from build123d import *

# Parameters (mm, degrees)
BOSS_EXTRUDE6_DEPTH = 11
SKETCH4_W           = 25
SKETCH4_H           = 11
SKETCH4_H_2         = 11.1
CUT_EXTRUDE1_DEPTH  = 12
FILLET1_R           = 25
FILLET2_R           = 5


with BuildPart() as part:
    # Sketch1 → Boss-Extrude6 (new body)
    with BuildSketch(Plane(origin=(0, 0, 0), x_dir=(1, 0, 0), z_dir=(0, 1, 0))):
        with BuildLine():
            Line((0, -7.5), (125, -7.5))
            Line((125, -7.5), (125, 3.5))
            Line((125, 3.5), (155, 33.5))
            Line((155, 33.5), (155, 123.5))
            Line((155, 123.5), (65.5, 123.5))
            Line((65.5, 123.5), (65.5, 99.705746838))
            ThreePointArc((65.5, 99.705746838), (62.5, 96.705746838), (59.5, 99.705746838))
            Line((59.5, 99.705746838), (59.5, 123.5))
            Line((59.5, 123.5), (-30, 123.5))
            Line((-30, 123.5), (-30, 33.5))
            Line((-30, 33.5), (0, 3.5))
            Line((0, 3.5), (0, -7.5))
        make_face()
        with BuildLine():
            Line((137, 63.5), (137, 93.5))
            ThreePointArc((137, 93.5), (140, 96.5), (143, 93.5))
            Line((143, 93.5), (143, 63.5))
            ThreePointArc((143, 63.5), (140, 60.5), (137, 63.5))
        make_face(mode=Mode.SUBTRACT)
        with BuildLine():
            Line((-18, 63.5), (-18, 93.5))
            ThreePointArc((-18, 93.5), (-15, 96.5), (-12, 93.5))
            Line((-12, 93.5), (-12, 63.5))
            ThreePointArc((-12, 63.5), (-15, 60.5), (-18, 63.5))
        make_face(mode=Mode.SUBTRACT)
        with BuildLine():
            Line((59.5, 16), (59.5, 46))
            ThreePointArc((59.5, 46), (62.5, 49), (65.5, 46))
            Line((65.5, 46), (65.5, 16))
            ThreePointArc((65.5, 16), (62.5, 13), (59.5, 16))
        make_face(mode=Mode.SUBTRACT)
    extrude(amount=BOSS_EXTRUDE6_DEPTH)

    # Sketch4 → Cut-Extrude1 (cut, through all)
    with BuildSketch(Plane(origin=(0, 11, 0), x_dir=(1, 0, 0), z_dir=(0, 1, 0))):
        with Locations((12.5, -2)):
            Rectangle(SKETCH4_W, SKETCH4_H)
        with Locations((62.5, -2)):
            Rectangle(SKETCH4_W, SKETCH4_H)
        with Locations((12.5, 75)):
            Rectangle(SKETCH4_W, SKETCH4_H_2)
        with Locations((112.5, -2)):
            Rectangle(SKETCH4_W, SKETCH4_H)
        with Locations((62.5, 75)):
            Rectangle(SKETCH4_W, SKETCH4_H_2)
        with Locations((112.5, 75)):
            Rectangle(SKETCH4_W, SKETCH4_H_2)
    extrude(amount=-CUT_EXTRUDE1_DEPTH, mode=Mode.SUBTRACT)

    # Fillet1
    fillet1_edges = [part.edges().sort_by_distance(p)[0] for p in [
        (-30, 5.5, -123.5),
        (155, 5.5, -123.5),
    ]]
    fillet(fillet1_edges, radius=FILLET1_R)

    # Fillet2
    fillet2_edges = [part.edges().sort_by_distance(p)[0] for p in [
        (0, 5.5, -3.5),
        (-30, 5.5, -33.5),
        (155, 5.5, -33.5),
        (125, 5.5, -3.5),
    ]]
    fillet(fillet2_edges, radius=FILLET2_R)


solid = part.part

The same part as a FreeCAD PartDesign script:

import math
import FreeCAD as App
import Part
import Sketcher
from FreeCAD import Vector
Q = App.Units.Quantity


def edges_at(feature, points):
    """Names of the edges that pass closest to the given points."""
    edges = feature.Shape.Edges
    near = lambda p: min(range(len(edges)), key=lambda i: edges[i].distToShape(Part.Vertex(*p))[0])
    return sorted({f"Edge{near(p) + 1}" for p in points})

doc = App.newDocument("Part")
body = doc.addObject("PartDesign::Body", "Body")

# Sketch on XZ plane
sketch1 = body.newObject("Sketcher::SketchObject", "Sketch")
sketch1.AttachmentSupport = (doc.getObject("XZ_Plane"), [""])
sketch1.MapMode = "FlatFace"
sketch1.addGeometry([
    Part.LineSegment(Vector(0, 7.5, 0), Vector(125, 7.5, 0)),  # 0
    Part.LineSegment(Vector(125, 7.5, 0), Vector(125, -3.5, 0)),  # 1
    Part.LineSegment(Vector(125, -3.5, 0), Vector(155, -33.5, 0)),  # 2
    Part.LineSegment(Vector(155, -33.5, 0), Vector(155, -123.5, 0)),  # 3
    Part.LineSegment(Vector(155, -123.5, 0), Vector(65.5, -123.5, 0)),  # 4
    Part.LineSegment(Vector(65.5, -123.5, 0), Vector(65.5, -99.7, 0)),  # 5
    Part.ArcOfCircle(Part.Circle(Vector(62.5, -99.7, 0), Vector(0, 0, 1), 3), math.radians(0), math.radians(180)),  # 6
    Part.LineSegment(Vector(59.5, -99.7, 0), Vector(59.5, -123.5, 0)),  # 7
    Part.LineSegment(Vector(59.5, -123.5, 0), Vector(-30, -123.5, 0)),  # 8
    Part.LineSegment(Vector(-30, -123.5, 0), Vector(-30, -33.5, 0)),  # 9
    Part.LineSegment(Vector(-30, -33.5, 0), Vector(0, -3.5, 0)),  # 10
    Part.LineSegment(Vector(0, -3.5, 0), Vector(0, 7.5, 0)),  # 11
    Part.ArcOfCircle(Part.Circle(Vector(62.5, -16, 0), Vector(0, 0, 1), 3), math.radians(0), math.radians(180)),  # 12
    Part.LineSegment(Vector(59.5, -16, 0), Vector(59.5, -46, 0)),  # 13
    Part.ArcOfCircle(Part.Circle(Vector(62.5, -46, 0), Vector(0, 0, 1), 3), math.radians(180), math.radians(360)),  # 14
    Part.LineSegment(Vector(65.5, -46, 0), Vector(65.5, -16, 0)),  # 15
    Part.ArcOfCircle(Part.Circle(Vector(-15, -63.5, 0), Vector(0, 0, 1), 3), math.radians(0), math.radians(180)),  # 16
    Part.LineSegment(Vector(-18, -63.5, 0), Vector(-18, -93.5, 0)),  # 17
    Part.ArcOfCircle(Part.Circle(Vector(-15, -93.5, 0), Vector(0, 0, 1), 3), math.radians(180), math.radians(360)),  # 18
    Part.LineSegment(Vector(-12, -93.5, 0), Vector(-12, -63.5, 0)),  # 19
    Part.ArcOfCircle(Part.Circle(Vector(140, -63.5, 0), Vector(0, 0, 1), 3), math.radians(0), math.radians(180)),  # 20
    Part.LineSegment(Vector(137, -63.5, 0), Vector(137, -93.5, 0)),  # 21
    Part.ArcOfCircle(Part.Circle(Vector(140, -93.5, 0), Vector(0, 0, 1), 3), math.radians(180), math.radians(360)),  # 22
    Part.LineSegment(Vector(143, -93.5, 0), Vector(143, -63.5, 0)),  # 23
], False)
sketch1.addConstraint([
    Sketcher.Constraint("Coincident", 0, 2, 1, 1),
    Sketcher.Constraint("Coincident", 1, 2, 2, 1),
    Sketcher.Constraint("Coincident", 2, 2, 3, 1),
    Sketcher.Constraint("Coincident", 3, 2, 4, 1),
    Sketcher.Constraint("Coincident", 4, 2, 5, 1),
    Sketcher.Constraint("Tangent", 5, 2, 6, 1),
    Sketcher.Constraint("Tangent", 6, 2, 7, 1),
    Sketcher.Constraint("Coincident", 7, 2, 8, 1),
    Sketcher.Constraint("Coincident", 8, 2, 9, 1),
    Sketcher.Constraint("Coincident", 9, 2, 10, 1),
    Sketcher.Constraint("Coincident", 10, 2, 11, 1),
    Sketcher.Constraint("Coincident", 11, 2, 0, 1),
    Sketcher.Constraint("Tangent", 12, 2, 13, 1),
    Sketcher.Constraint("Tangent", 13, 2, 14, 1),
    Sketcher.Constraint("Tangent", 14, 2, 15, 1),
    Sketcher.Constraint("Tangent", 15, 2, 12, 1),
    Sketcher.Constraint("Tangent", 16, 2, 17, 1),
    Sketcher.Constraint("Tangent", 17, 2, 18, 1),
    Sketcher.Constraint("Tangent", 18, 2, 19, 1),
    Sketcher.Constraint("Tangent", 19, 2, 16, 1),
    Sketcher.Constraint("Tangent", 20, 2, 21, 1),
    Sketcher.Constraint("Tangent", 21, 2, 22, 1),
    Sketcher.Constraint("Tangent", 22, 2, 23, 1),
    Sketcher.Constraint("Tangent", 23, 2, 20, 1),
    Sketcher.Constraint("Horizontal", 0),
    Sketcher.Constraint("Vertical", 1),
    Sketcher.Constraint("Vertical", 3),
    Sketcher.Constraint("Horizontal", 4),
    Sketcher.Constraint("Vertical", 5),
    Sketcher.Constraint("Vertical", 7),
    Sketcher.Constraint("Horizontal", 8),
    Sketcher.Constraint("Vertical", 9),
    Sketcher.Constraint("Vertical", 11),
    Sketcher.Constraint("Vertical", 13),
    Sketcher.Constraint("Vertical", 15),
    Sketcher.Constraint("Vertical", 17),
    Sketcher.Constraint("Vertical", 19),
    Sketcher.Constraint("Vertical", 21),
    Sketcher.Constraint("Vertical", 23),
    Sketcher.Constraint("Equal", 6, 12),
    Sketcher.Constraint("Equal", 14, 16),
    Sketcher.Constraint("Equal", 18, 20),
    Sketcher.Constraint("PointOnObject", 10, 2, -2),
    Sketcher.Constraint("Perpendicular", 2, 10),
    Sketcher.Constraint("Horizontal", 16, 3, 20, 3),
    Sketcher.Constraint("Horizontal", 18, 3, 22, 3),
    Sketcher.Constraint("Horizontal", 4, 2, 7, 2),
    Sketcher.Constraint("Horizontal", 2, 2, 9, 2),
    Sketcher.Constraint("Horizontal", 1, 2, 10, 2),
    Sketcher.Constraint("Vertical", 6, 3, 12, 3),
    Sketcher.Constraint("Equal", 4, 8),
    Sketcher.Constraint("Equal", 15, 17),
    Sketcher.Constraint("Equal", 2, 10),
    Sketcher.Constraint("Radius", 6, Q("3 mm")),
    Sketcher.Constraint("DistanceX", 0, 1, 0, 2, Q("125 mm")),
    Sketcher.Constraint("DistanceY", 1, 2, 1, 1, Q("11 mm")),
    Sketcher.Constraint("DistanceY", 3, 2, 3, 1, Q("90 mm")),
    Sketcher.Constraint("DistanceY", 13, 2, 13, 1, Q("30 mm")),
    Sketcher.Constraint("DistanceX", 4, 2, 4, 1, Q("89.5 mm")),
    Sketcher.Constraint("DistanceY", 12, 3, -1, 1, Q("16 mm")),
    Sketcher.Constraint("DistanceX", 16, 3, -1, 1, Q("15 mm")),
    Sketcher.Constraint("DistanceX", -1, 1, 20, 3, Q("140 mm")),
    Sketcher.Constraint("DistanceY", 20, 3, 0, 2, Q("71 mm")),
    Sketcher.Constraint("DistanceY", 16, 3, -1, 1, Q("63.5 mm")),
    Sketcher.Constraint("DistanceY", 5, 1, 5, 2, Q("23.794253 mm")),
])
pad1 = body.newObject("PartDesign::Pad", "Pad")
pad1.Profile = sketch1
pad1.Length = 11
pad1.Reversed = True

# Sketch on XZ plane
sketch2 = body.newObject("Sketcher::SketchObject", "Sketch001")
sketch2.AttachmentSupport = (doc.getObject("XZ_Plane"), [""])
sketch2.MapMode = "FlatFace"
sketch2.AttachmentOffset = App.Placement(Vector(0, 0, -11), App.Rotation())
sketch2.addGeometry([
    Part.LineSegment(Vector(0, -4, 0), Vector(0, 8, 0)),  # 0
    Part.LineSegment(Vector(0, 8, 0), Vector(25, 8, 0)),  # 1
    Part.LineSegment(Vector(25, 8, 0), Vector(25, -4, 0)),  # 2
    Part.LineSegment(Vector(25, -4, 0), Vector(0, -4, 0)),  # 3
    Part.LineSegment(Vector(50, -4, 0), Vector(50, 8, 0)),  # 4
    Part.LineSegment(Vector(50, 8, 0), Vector(75, 8, 0)),  # 5
    Part.LineSegment(Vector(75, 8, 0), Vector(75, -4, 0)),  # 6
    Part.LineSegment(Vector(75, -4, 0), Vector(50, -4, 0)),  # 7
    Part.LineSegment(Vector(0, -81, 0), Vector(0, -69, 0)),  # 8
    Part.LineSegment(Vector(0, -69, 0), Vector(25, -69, 0)),  # 9
    Part.LineSegment(Vector(25, -69, 0), Vector(25, -81, 0)),  # 10
    Part.LineSegment(Vector(25, -81, 0), Vector(0, -81, 0)),  # 11
    Part.LineSegment(Vector(100, -4, 0), Vector(100, 8, 0)),  # 12
    Part.LineSegment(Vector(100, 8, 0), Vector(125, 8, 0)),  # 13
    Part.LineSegment(Vector(125, 8, 0), Vector(125, -4, 0)),  # 14
    Part.LineSegment(Vector(125, -4, 0), Vector(100, -4, 0)),  # 15
    Part.LineSegment(Vector(50, -81, 0), Vector(50, -69, 0)),  # 16
    Part.LineSegment(Vector(50, -69, 0), Vector(75, -69, 0)),  # 17
    Part.LineSegment(Vector(75, -69, 0), Vector(75, -81, 0)),  # 18
    Part.LineSegment(Vector(75, -81, 0), Vector(50, -81, 0)),  # 19
    Part.LineSegment(Vector(100, -81, 0), Vector(100, -69, 0)),  # 20
    Part.LineSegment(Vector(100, -69, 0), Vector(125, -69, 0)),  # 21
    Part.LineSegment(Vector(125, -69, 0), Vector(125, -81, 0)),  # 22
    Part.LineSegment(Vector(125, -81, 0), Vector(100, -81, 0)),  # 23
], False)
sketch2.addConstraint([
    Sketcher.Constraint("Coincident", 0, 2, 1, 1),
    Sketcher.Constraint("Coincident", 1, 2, 2, 1),
    Sketcher.Constraint("Coincident", 2, 2, 3, 1),
    Sketcher.Constraint("Coincident", 3, 2, 0, 1),
    Sketcher.Constraint("Coincident", 4, 2, 5, 1),
    Sketcher.Constraint("Coincident", 5, 2, 6, 1),
    Sketcher.Constraint("Coincident", 6, 2, 7, 1),
    Sketcher.Constraint("Coincident", 7, 2, 4, 1),
    Sketcher.Constraint("Coincident", 8, 2, 9, 1),
    Sketcher.Constraint("Coincident", 9, 2, 10, 1),
    Sketcher.Constraint("Coincident", 10, 2, 11, 1),
    Sketcher.Constraint("Coincident", 11, 2, 8, 1),
    Sketcher.Constraint("Coincident", 12, 2, 13, 1),
    Sketcher.Constraint("Coincident", 13, 2, 14, 1),
    Sketcher.Constraint("Coincident", 14, 2, 15, 1),
    Sketcher.Constraint("Coincident", 15, 2, 12, 1),
    Sketcher.Constraint("Coincident", 16, 2, 17, 1),
    Sketcher.Constraint("Coincident", 17, 2, 18, 1),
    Sketcher.Constraint("Coincident", 18, 2, 19, 1),
    Sketcher.Constraint("Coincident", 19, 2, 16, 1),
    Sketcher.Constraint("Coincident", 20, 2, 21, 1),
    Sketcher.Constraint("Coincident", 21, 2, 22, 1),
    Sketcher.Constraint("Coincident", 22, 2, 23, 1),
    Sketcher.Constraint("Coincident", 23, 2, 20, 1),
    Sketcher.Constraint("Vertical", 0),
    Sketcher.Constraint("Horizontal", 1),
    Sketcher.Constraint("Vertical", 2),
    Sketcher.Constraint("Horizontal", 3),
    Sketcher.Constraint("Vertical", 4),
    Sketcher.Constraint("Horizontal", 5),
    Sketcher.Constraint("Vertical", 6),
    Sketcher.Constraint("Horizontal", 7),
    Sketcher.Constraint("Vertical", 8),
    Sketcher.Constraint("Horizontal", 9),
    Sketcher.Constraint("Vertical", 10),
    Sketcher.Constraint("Horizontal", 11),
    Sketcher.Constraint("Vertical", 12),
    Sketcher.Constraint("Horizontal", 13),
    Sketcher.Constraint("Vertical", 14),
    Sketcher.Constraint("Horizontal", 15),
    Sketcher.Constraint("Vertical", 16),
    Sketcher.Constraint("Horizontal", 17),
    Sketcher.Constraint("Vertical", 18),
    Sketcher.Constraint("Horizontal", 19),
    Sketcher.Constraint("Vertical", 20),
    Sketcher.Constraint("Horizontal", 21),
    Sketcher.Constraint("Vertical", 22),
    Sketcher.Constraint("Horizontal", 23),
    Sketcher.Constraint("PointOnObject", 0, 2, -2),
    Sketcher.Constraint("PointOnObject", 8, 2, -2),
    Sketcher.Constraint("Horizontal", 1, 2, 4, 2),
    Sketcher.Constraint("Horizontal", 3, 2, 6, 2),
    Sketcher.Constraint("Horizontal", 5, 2, 12, 2),
    Sketcher.Constraint("Horizontal", 7, 2, 14, 2),
    Sketcher.Constraint("Horizontal", 9, 2, 16, 2),
    Sketcher.Constraint("Horizontal", 11, 2, 18, 2),
    Sketcher.Constraint("Horizontal", 17, 2, 20, 2),
    Sketcher.Constraint("Horizontal", 19, 2, 22, 2),
    Sketcher.Constraint("Vertical", 2, 2, 9, 2),
    Sketcher.Constraint("Vertical", 7, 2, 16, 2),
    Sketcher.Constraint("Vertical", 6, 2, 17, 2),
    Sketcher.Constraint("Vertical", 15, 2, 20, 2),
    Sketcher.Constraint("Vertical", 14, 2, 21, 2),
    Sketcher.Constraint("Equal", 3, 5),
    Sketcher.Constraint("Equal", 11, 13),
    Sketcher.Constraint("DistanceX", 1, 1, 1, 2, Q("25 mm")),
    Sketcher.Constraint("DistanceY", 0, 1, 0, 2, Q("11 mm")),
    Sketcher.Constraint("DistanceY", 8, 1, 8, 2, Q("11.1 mm")),
    Sketcher.Constraint("DistanceX", -1, 1, 4, 2, Q("50 mm")),
    Sketcher.Constraint("DistanceX", -1, 1, 12, 2, Q("100 mm")),
    Sketcher.Constraint("DistanceY", -1, 1, 0, 2, Q("7.5 mm")),
    Sketcher.Constraint("DistanceY", 8, 2, -1, 1, Q("69.45 mm")),
])
pocket1 = body.newObject("PartDesign::Pocket", "Pocket")
pocket1.Profile = sketch2
pocket1.Type = "ThroughAll"
pocket1.Reversed = True
doc.recompute()

fillet = body.newObject("PartDesign::Fillet", "Fillet")
fillet.Base = (pocket1, edges_at(pocket1, [(-30, 5.5, -123.5), (155, 5.5, -123.5)]))
fillet.Radius = 25
doc.recompute()

fillet2 = body.newObject("PartDesign::Fillet", "Fillet001")
fillet2.Base = (fillet, edges_at(fillet, [
    (0, 5.5, -3.5),
    (-30, 5.5, -33.5),
    (155, 5.5, -33.5),
    (125, 5.5, -3.5),
]))
fillet2.Radius = 5

doc.recompute()
